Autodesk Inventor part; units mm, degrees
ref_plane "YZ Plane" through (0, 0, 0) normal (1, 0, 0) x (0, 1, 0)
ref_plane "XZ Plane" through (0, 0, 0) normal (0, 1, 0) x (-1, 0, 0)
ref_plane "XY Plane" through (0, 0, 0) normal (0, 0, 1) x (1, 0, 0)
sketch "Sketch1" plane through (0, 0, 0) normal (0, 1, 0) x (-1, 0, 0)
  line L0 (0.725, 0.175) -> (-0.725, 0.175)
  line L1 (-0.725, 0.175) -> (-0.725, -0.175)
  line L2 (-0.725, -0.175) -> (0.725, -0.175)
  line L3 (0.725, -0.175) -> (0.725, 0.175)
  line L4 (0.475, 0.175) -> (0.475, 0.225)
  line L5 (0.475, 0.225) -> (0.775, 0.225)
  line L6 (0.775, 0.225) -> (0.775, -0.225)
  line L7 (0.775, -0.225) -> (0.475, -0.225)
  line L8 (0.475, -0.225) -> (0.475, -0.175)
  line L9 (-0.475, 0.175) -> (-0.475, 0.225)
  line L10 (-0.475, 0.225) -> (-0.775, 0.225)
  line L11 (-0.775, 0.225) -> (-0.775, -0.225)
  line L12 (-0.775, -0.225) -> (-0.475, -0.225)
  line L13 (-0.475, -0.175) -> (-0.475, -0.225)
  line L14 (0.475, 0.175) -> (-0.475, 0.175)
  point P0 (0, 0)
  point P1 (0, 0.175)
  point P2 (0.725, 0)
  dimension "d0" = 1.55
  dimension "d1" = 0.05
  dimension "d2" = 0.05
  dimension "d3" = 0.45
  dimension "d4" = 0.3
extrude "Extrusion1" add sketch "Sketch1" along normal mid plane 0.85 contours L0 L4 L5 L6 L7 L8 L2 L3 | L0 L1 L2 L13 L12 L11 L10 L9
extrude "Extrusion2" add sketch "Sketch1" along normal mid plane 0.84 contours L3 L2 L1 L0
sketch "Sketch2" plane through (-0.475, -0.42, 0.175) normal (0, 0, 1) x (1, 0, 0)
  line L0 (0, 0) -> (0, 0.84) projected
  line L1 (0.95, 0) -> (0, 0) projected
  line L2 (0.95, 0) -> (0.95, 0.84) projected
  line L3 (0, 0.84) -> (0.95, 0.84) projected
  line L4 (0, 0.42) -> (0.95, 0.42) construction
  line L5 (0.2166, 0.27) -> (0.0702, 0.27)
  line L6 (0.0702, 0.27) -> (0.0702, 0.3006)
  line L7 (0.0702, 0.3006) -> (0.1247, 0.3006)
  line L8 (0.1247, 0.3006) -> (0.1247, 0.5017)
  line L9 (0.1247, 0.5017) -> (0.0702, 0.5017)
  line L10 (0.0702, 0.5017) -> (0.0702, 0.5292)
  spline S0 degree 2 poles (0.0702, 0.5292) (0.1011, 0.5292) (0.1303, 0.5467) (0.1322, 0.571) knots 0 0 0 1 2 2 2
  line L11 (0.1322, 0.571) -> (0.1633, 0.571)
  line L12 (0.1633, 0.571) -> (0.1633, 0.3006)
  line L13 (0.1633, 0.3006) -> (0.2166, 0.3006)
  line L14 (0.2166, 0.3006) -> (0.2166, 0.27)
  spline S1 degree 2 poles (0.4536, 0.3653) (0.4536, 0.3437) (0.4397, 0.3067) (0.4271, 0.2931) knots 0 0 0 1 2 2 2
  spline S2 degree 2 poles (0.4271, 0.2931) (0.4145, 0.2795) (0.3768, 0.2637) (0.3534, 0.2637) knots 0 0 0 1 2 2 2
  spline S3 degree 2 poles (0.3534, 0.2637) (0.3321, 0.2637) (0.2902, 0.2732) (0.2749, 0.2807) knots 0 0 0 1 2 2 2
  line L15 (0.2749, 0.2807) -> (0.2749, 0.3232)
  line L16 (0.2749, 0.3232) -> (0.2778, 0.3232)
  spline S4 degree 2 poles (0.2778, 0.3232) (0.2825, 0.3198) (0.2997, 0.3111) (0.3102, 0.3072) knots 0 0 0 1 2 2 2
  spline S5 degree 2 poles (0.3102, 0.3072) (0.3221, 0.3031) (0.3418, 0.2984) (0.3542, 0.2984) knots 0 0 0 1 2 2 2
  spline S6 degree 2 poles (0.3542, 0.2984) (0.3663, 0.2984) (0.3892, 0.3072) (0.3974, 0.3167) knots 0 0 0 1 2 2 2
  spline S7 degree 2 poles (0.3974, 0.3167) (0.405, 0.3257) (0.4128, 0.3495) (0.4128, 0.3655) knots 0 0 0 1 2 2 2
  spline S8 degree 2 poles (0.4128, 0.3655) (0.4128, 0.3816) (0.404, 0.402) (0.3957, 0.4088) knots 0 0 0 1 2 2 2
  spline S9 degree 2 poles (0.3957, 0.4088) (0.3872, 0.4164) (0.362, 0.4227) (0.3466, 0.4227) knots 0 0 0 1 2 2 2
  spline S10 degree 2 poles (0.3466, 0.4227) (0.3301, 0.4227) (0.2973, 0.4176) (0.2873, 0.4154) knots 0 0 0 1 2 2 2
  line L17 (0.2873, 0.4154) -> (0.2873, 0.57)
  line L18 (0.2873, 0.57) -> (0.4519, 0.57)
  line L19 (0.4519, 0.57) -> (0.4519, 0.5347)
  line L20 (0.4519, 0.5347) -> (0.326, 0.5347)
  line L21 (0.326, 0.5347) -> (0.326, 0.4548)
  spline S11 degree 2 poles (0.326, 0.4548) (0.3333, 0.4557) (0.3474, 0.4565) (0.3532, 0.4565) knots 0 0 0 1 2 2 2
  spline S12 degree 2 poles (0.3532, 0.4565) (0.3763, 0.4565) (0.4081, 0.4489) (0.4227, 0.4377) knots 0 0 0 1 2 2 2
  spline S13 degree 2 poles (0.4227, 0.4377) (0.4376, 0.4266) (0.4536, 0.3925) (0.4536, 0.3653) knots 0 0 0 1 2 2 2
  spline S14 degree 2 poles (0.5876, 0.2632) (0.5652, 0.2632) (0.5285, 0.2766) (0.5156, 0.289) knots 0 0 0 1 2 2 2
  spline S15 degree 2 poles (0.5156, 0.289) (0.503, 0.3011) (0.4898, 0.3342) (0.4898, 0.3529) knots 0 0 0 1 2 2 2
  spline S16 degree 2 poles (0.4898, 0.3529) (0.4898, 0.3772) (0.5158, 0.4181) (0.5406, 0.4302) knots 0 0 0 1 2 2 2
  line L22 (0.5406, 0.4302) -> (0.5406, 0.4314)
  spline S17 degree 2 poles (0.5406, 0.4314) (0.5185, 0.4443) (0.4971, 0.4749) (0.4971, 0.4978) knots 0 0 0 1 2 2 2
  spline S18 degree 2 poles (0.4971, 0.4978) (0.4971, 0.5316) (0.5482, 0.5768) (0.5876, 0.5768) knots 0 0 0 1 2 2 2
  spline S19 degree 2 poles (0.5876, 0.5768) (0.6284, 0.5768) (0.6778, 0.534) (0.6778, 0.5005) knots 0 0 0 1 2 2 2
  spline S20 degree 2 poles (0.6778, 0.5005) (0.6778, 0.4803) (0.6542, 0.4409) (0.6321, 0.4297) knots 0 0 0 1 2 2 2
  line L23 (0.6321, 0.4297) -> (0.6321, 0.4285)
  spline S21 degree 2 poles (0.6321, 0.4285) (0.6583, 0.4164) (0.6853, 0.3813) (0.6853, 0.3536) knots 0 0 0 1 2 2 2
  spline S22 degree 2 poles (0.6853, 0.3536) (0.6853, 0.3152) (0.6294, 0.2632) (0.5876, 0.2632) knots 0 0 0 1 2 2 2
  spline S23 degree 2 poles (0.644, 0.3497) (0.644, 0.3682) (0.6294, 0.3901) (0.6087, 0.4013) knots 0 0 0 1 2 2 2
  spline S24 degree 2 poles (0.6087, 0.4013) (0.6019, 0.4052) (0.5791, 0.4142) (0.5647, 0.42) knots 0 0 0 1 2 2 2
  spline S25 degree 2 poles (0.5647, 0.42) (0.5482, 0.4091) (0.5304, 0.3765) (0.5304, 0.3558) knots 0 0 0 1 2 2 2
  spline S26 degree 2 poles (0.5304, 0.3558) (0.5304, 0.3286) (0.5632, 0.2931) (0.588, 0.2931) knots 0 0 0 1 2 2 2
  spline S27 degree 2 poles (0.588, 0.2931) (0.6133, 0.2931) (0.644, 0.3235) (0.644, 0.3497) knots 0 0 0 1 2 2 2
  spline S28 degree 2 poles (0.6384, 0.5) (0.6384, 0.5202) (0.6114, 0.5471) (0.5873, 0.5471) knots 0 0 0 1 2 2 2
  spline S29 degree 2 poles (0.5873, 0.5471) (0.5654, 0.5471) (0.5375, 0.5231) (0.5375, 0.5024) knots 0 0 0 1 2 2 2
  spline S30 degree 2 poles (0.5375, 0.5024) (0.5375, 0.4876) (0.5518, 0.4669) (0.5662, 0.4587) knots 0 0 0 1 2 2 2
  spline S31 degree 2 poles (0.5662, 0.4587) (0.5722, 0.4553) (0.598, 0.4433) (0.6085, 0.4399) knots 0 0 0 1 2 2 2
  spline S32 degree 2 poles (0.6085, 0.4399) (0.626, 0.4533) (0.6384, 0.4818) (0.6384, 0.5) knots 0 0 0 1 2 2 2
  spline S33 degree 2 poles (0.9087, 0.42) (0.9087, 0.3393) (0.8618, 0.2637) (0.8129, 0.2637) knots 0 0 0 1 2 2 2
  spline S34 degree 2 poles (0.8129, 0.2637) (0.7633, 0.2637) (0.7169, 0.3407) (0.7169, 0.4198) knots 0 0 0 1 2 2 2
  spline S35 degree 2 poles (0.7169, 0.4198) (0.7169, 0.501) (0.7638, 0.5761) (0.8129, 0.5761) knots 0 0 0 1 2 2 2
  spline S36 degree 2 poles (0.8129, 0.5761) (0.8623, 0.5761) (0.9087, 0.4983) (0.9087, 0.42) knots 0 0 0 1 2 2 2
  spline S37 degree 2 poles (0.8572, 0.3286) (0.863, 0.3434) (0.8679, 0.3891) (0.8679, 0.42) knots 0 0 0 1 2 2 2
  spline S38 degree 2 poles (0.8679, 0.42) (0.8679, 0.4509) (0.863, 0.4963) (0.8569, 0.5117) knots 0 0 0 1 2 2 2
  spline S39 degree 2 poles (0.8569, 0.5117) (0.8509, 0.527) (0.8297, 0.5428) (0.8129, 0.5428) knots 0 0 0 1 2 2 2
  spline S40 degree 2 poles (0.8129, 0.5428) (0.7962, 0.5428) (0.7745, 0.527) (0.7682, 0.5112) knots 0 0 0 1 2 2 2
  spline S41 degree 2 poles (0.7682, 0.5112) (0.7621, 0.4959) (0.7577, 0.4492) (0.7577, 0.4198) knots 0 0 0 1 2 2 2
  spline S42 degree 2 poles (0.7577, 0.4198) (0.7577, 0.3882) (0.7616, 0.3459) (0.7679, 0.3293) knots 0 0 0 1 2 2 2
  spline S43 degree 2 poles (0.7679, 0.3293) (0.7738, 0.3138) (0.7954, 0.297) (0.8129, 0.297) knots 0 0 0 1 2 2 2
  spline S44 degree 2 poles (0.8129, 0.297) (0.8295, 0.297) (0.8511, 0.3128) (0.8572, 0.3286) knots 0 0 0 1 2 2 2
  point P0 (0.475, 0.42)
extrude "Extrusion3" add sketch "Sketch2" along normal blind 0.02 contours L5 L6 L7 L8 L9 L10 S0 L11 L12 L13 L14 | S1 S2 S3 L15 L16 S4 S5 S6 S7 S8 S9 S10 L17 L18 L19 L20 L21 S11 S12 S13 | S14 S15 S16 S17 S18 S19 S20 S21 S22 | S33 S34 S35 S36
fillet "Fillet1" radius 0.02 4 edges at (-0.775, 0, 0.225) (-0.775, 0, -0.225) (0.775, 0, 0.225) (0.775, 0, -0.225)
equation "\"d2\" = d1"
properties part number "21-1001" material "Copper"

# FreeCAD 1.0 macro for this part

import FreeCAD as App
import Part
import Sketcher
Q = App.Units.Quantity


def edges_at(feature, points):
    """Names of the edges that pass closest to the given points."""
    edges = feature.Shape.Edges
    near = lambda p: min(range(len(edges)), key=lambda i: edges[i].distToShape(Part.Vertex(*p))[0])
    return sorted({f"Edge{near(p) + 1}" for p in points})


def add_polygon(sketch, points):
    """Adds a closed chain of lines whose ends are joined by coincident constraints."""
    first, n = sketch.GeometryCount, len(points)
    for a, b in zip(points, points[1:] + points[:1]):
        sketch.addGeometry(Part.LineSegment(App.Vector(*a, 0), App.Vector(*b, 0)), False)
    for i in range(n):
        sketch.addConstraint(Sketcher.Constraint("Coincident", first + i, 2, first + (i + 1) % n, 1))

doc = App.newDocument("Part")
body = doc.addObject("PartDesign::Body", "Body")
body.AllowCompound = True

# Sketch on XZ plane
sketch1 = doc.addObject("Sketcher::SketchObject", "Sketch")
body.addObject(sketch1)
sketch1.AttachmentSupport = (doc.XZ_Plane, [""])
sketch1.MapMode = "FlatFace"
add_polygon(sketch1, [(-0.475, 0.175), (-0.725, 0.175), (-0.725, -0.175), (-0.475, -0.175), (-0.475, -0.225), (-0.775, -0.225), (-0.775, 0.225), (-0.475, 0.225)])  # lines 0-7
add_polygon(sketch1, [(0.725, 0.175), (0.475, 0.175), (0.475, 0.225), (0.775, 0.225), (0.775, -0.225), (0.475, -0.225), (0.475, -0.175), (0.725, -0.175)])  # lines 8-15
sketch1.addConstraint(Sketcher.Constraint("Horizontal", 0))
sketch1.addConstraint(Sketcher.Constraint("Vertical", 1))
sketch1.addConstraint(Sketcher.Constraint("Horizontal", 2))
sketch1.addConstraint(Sketcher.Constraint("Vertical", 3))
sketch1.addConstraint(Sketcher.Constraint("Horizontal", 4))
sketch1.addConstraint(Sketcher.Constraint("Vertical", 5))
sketch1.addConstraint(Sketcher.Constraint("Horizontal", 6))
sketch1.addConstraint(Sketcher.Constraint("Vertical", 7))
sketch1.addConstraint(Sketcher.Constraint("Horizontal", 8))
sketch1.addConstraint(Sketcher.Constraint("Vertical", 9))
sketch1.addConstraint(Sketcher.Constraint("Horizontal", 10))
sketch1.addConstraint(Sketcher.Constraint("Vertical", 11))
sketch1.addConstraint(Sketcher.Constraint("Horizontal", 12))
sketch1.addConstraint(Sketcher.Constraint("Vertical", 13))
sketch1.addConstraint(Sketcher.Constraint("Horizontal", 14))
sketch1.addConstraint(Sketcher.Constraint("Vertical", 15))
sketch1.addConstraint(Sketcher.Constraint("Symmetric", 2, 2, 8, 2, -1, 1))
sketch1.addConstraint(Sketcher.Constraint("Symmetric", 4, 2, 10, 2, -1, 1))
sketch1.addConstraint(Sketcher.Constraint("Symmetric", 6, 2, 12, 2, -1, 1))
sketch1.addConstraint(Sketcher.Constraint("Symmetric", 0, 2, 14, 2, -1, 1))
sketch1.addConstraint(Sketcher.Constraint("Symmetric", 7, 2, 8, 2, -2))
sketch1.addConstraint(Sketcher.Constraint("Horizontal", 6, 2, 9, 2))
sketch1.addConstraint(Sketcher.Constraint("DistanceX", 4, 2, 4, 1, Q("0.3 mm")))
sketch1.addConstraint(Sketcher.Constraint("DistanceY", 3, 2, 3, 1, Q("0.05 mm")))
sketch1.addConstraint(Sketcher.Constraint("DistanceY", 5, 1, 5, 2, Q("0.45 mm")))
sketch1.addConstraint(Sketcher.Constraint("DistanceX", 4, 2, 1, 2, Q("0.05 mm")))
sketch1.addConstraint(Sketcher.Constraint("DistanceX", 0, 2, 8, 2, Q("1.2 mm")))
pad1 = doc.addObject("PartDesign::Pad", "Pad")
body.addObject(pad1)
pad1.Profile = sketch1
pad1.Length = 0.85
pad1.Midplane = True

# Sketch on XZ plane
sketch2 = doc.addObject("Sketcher::SketchObject", "Sketch001")
body.addObject(sketch2)
sketch2.AttachmentSupport = (doc.XZ_Plane, [""])
sketch2.MapMode = "FlatFace"
add_polygon(sketch2, [(-0.725, -0.175), (-0.725, 0.175), (0.725, 0.175), (0.725, -0.175)])  # lines 0-3
sketch2.addConstraint(Sketcher.Constraint("Vertical", 0))
sketch2.addConstraint(Sketcher.Constraint("Horizontal", 1))
sketch2.addConstraint(Sketcher.Constraint("Vertical", 2))
sketch2.addConstraint(Sketcher.Constraint("Horizontal", 3))
sketch2.addConstraint(Sketcher.Constraint("Symmetric", 0, 2, 2, 2, -1, 1))
sketch2.addConstraint(Sketcher.Constraint("DistanceX", 1, 1, 1, 2, Q("1.45 mm")))
sketch2.addConstraint(Sketcher.Constraint("DistanceY", 0, 1, 0, 2, Q("0.35 mm")))
pad2 = doc.addObject("PartDesign::Pad", "Pad001")
body.addObject(pad2)
pad2.Profile = sketch2
pad2.Length = 0.84
pad2.Midplane = True

# Sketch on XY plane
sketch3 = doc.addObject("Sketcher::SketchObject", "Sketch002")
body.addObject(sketch3)
sketch3.AttachmentSupport = (doc.XY_Plane, [""])
sketch3.MapMode = "FlatFace"
sketch3.AttachmentOffset = App.Placement(App.Vector(0, 0, 0.175), App.Rotation())
sketch3.addGeometry(Part.LineSegment(App.Vector(-0.4048, -0.15, 0), App.Vector(-0.2584, -0.15, 0)), False)
sketch3.addGeometry(Part.LineSegment(App.Vector(-0.2584, -0.15, 0), App.Vector(-0.2584, -0.1194, 0)), False)
sketch3.addGeometry(Part.LineSegment(App.Vector(-0.2584, -0.1194, 0), App.Vector(-0.3117, -0.1194, 0)), False)
sketch3.addGeometry(Part.LineSegment(App.Vector(-0.3117, -0.1194, 0), App.Vector(-0.3117, 0.151, 0)), False)
sketch3.addGeometry(Part.LineSegment(App.Vector(-0.3117, 0.151, 0), App.Vector(-0.3428, 0.151, 0)), False)
sketch3.addGeometry(Part.BSplineCurve([App.Vector(-0.4048, 0.1092, 0), App.Vector(-0.3739, 0.1092, 0), App.Vector(-0.3447, 0.1267, 0), App.Vector(-0.3428, 0.151, 0)], [3, 1, 3], [0, 1, 2], False, 2, [1, 1, 1, 1], False), False)
sketch3.addGeometry(Part.LineSegment(App.Vector(-0.4048, 0.1092, 0), App.Vector(-0.4048, 0.0817, 0)), False)
sketch3.addGeometry(Part.LineSegment(App.Vector(-0.4048, 0.0817, 0), App.Vector(-0.3503, 0.0817, 0)), False)
sketch3.addGeometry(Part.LineSegment(App.Vector(-0.3503, 0.0817, 0), App.Vector(-0.3503, -0.1194, 0)), False)
sketch3.addGeometry(Part.LineSegment(App.Vector(-0.3503, -0.1194, 0), App.Vector(-0.4048, -0.1194, 0)), False)
sketch3.addGeometry(Part.LineSegment(App.Vector(-0.4048, -0.1194, 0), App.Vector(-0.4048, -0.15, 0)), False)
sketch3.addGeometry(Part.BSplineCurve([App.Vector(-0.0214, -0.0547, 0), App.Vector(-0.0214, -0.0763, 0), App.Vector(-0.0353, -0.1133, 0), App.Vector(-0.0479, -0.1269, 0)], [3, 1, 3], [0, 1, 2], False, 2, [1, 1, 1, 1], False), False)
sketch3.addGeometry(Part.BSplineCurve([App.Vector(-0.0523, 0.0177, 0), App.Vector(-0.0374, 0.0066, 0), App.Vector(-0.0214, -0.0275, 0), App.Vector(-0.0214, -0.0547, 0)], [3, 1, 3], [0, 1, 2], False, 2, [1, 1, 1, 1], False), False)
sketch3.addGeometry(Part.BSplineCurve([App.Vector(-0.1218, 0.0365, 0), App.Vector(-0.0987, 0.0365, 0), App.Vector(-0.0669, 0.0289, 0), App.Vector(-0.0523, 0.0177, 0)], [3, 1, 3], [0, 1, 2], False, 2, [1, 1, 1, 1], False), False)
sketch3.addGeometry(Part.BSplineCurve([App.Vector(-0.149, 0.0348, 0), App.Vector(-0.1417, 0.0357, 0), App.Vector(-0.1276, 0.0365, 0), App.Vector(-0.1218, 0.0365, 0)], [3, 1, 3], [0, 1, 2], False, 2, [1, 1, 1, 1], False), False)
sketch3.addGeometry(Part.LineSegment(App.Vector(-0.149, 0.0348, 0), App.Vector(-0.149, 0.1147, 0)), False)
sketch3.addGeometry(Part.LineSegment(App.Vector(-0.149, 0.1147, 0), App.Vector(-0.0231, 0.1147, 0)), False)
sketch3.addGeometry(Part.LineSegment(App.Vector(-0.0231, 0.1147, 0), App.Vector(-0.0231, 0.15, 0)), False)
sketch3.addGeometry(Part.LineSegment(App.Vector(-0.0231, 0.15, 0), App.Vector(-0.1877, 0.15, 0)), False)
sketch3.addGeometry(Part.LineSegment(App.Vector(-0.1877, 0.15, 0), App.Vector(-0.1877, -0.0046, 0)), False)
sketch3.addGeometry(Part.BSplineCurve([App.Vector(-0.1284, 0.0027, 0), App.Vector(-0.1449, 0.0027, 0), App.Vector(-0.1777, -0.0024, 0), App.Vector(-0.1877, -0.0046, 0)], [3, 1, 3], [0, 1, 2], False, 2, [1, 1, 1, 1], False), False)
sketch3.addGeometry(Part.BSplineCurve([App.Vector(-0.0793, -0.0112, 0), App.Vector(-0.0878, -0.0036, 0), App.Vector(-0.113, 0.0027, 0), App.Vector(-0.1284, 0.0027, 0)], [3, 1, 3], [0, 1, 2], False, 2, [1, 1, 1, 1], False), False)
sketch3.addGeometry(Part.BSplineCurve([App.Vector(-0.0622, -0.0545, 0), App.Vector(-0.0622, -0.0384, 0), App.Vector(-0.071, -0.018, 0), App.Vector(-0.0793, -0.0112, 0)], [3, 1, 3], [0, 1, 2], False, 2, [1, 1, 1, 1], False), False)
sketch3.addGeometry(Part.BSplineCurve([App.Vector(-0.0776, -0.1033, 0), App.Vector(-0.07, -0.0943, 0), App.Vector(-0.0622, -0.0705, 0), App.Vector(-0.0622, -0.0545, 0)], [3, 1, 3], [0, 1, 2], False, 2, [1, 1, 1, 1], False), False)
sketch3.addGeometry(Part.BSplineCurve([App.Vector(-0.1208, -0.1216, 0), App.Vector(-0.1087, -0.1216, 0), App.Vector(-0.0858, -0.1128, 0), App.Vector(-0.0776, -0.1033, 0)], [3, 1, 3], [0, 1, 2], False, 2, [1, 1, 1, 1], False), False)
sketch3.addGeometry(Part.BSplineCurve([App.Vector(-0.1648, -0.1128, 0), App.Vector(-0.1529, -0.1169, 0), App.Vector(-0.1332, -0.1216, 0), App.Vector(-0.1208, -0.1216, 0)], [3, 1, 3], [0, 1, 2], False, 2, [1, 1, 1, 1], False), False)
sketch3.addGeometry(Part.BSplineCurve([App.Vector(-0.1972, -0.0968, 0), App.Vector(-0.1925, -0.1002, 0), App.Vector(-0.1753, -0.1089, 0), App.Vector(-0.1648, -0.1128, 0)], [3, 1, 3], [0, 1, 2], False, 2, [1, 1, 1, 1], False), False)
sketch3.addGeometry(Part.LineSegment(App.Vector(-0.1972, -0.0968, 0), App.Vector(-0.2001, -0.0968, 0)), False)
sketch3.addGeometry(Part.LineSegment(App.Vector(-0.2001, -0.0968, 0), App.Vector(-0.2001, -0.1393, 0)), False)
sketch3.addGeometry(Part.BSplineCurve([App.Vector(-0.1216, -0.1563, 0), App.Vector(-0.1429, -0.1563, 0), App.Vector(-0.1848, -0.1468, 0), App.Vector(-0.2001, -0.1393, 0)], [3, 1, 3], [0, 1, 2], False, 2, [1, 1, 1, 1], False), False)
sketch3.addGeometry(Part.BSplineCurve([App.Vector(-0.0479, -0.1269, 0), App.Vector(-0.0605, -0.1405, 0), App.Vector(-0.0982, -0.1563, 0), App.Vector(-0.1216, -0.1563, 0)], [3, 1, 3], [0, 1, 2], False, 2, [1, 1, 1, 1], False), False)
sketch3.addGeometry(Part.BSplineCurve([App.Vector(0.1126, -0.1568, 0), App.Vector(0.0902, -0.1568, 0), App.Vector(0.0535, -0.1434, 0), App.Vector(0.0406, -0.131, 0)], [3, 1, 3], [0, 1, 2], False, 2, [1, 1, 1, 1], False), False)
sketch3.addGeometry(Part.BSplineCurve([App.Vector(0.2103, -0.0664, 0), App.Vector(0.2103, -0.1048, 0), App.Vector(0.1544, -0.1568, 0), App.Vector(0.1126, -0.1568, 0)], [3, 1, 3], [0, 1, 2], False, 2, [1, 1, 1, 1], False), False)
sketch3.addGeometry(Part.BSplineCurve([App.Vector(0.1571, 0.0097, 0), App.Vector(0.1833, -0.0036, 0), App.Vector(0.2103, -0.0387, 0), App.Vector(0.2103, -0.0664, 0)], [3, 1, 3], [0, 1, 2], False, 2, [1, 1, 1, 1], False), False)
sketch3.addGeometry(Part.BSplineCurve([App.Vector(0.2028, 0.0805, 0), App.Vector(0.2028, 0.0603, 0), App.Vector(0.1792, 0.0209, 0), App.Vector(0.1571, 0.0097, 0)], [3, 1, 3], [0, 1, 2], False, 2, [1, 1, 1, 1], False), False)
sketch3.addGeometry(Part.BSplineCurve([App.Vector(0.1126, 0.1568, 0), App.Vector(0.1534, 0.1568, 0), App.Vector(0.2028, 0.114, 0), App.Vector(0.2028, 0.0805, 0)], [3, 1, 3], [0, 1, 2], False, 2, [1, 1, 1, 1], False), False)
sketch3.addGeometry(Part.BSplineCurve([App.Vector(0.0221, 0.0778, 0), App.Vector(0.0221, 0.1116, 0), App.Vector(0.0732, 0.1568, 0), App.Vector(0.1126, 0.1568, 0)], [3, 1, 3], [0, 1, 2], False, 2, [1, 1, 1, 1], False), False)
sketch3.addGeometry(Part.BSplineCurve([App.Vector(0.0656, 0.0102, 0), App.Vector(0.0435, 0.0243, 0), App.Vector(0.0221, 0.0549, 0), App.Vector(0.0221, 0.0778, 0)], [3, 1, 3], [0, 1, 2], False, 2, [1, 1, 1, 1], False), False)
sketch3.addGeometry(Part.BSplineCurve([App.Vector(0.0148, -0.0671, 0), App.Vector(0.0148, -0.0428, 0), App.Vector(0.0408, -0.0019, 0), App.Vector(0.0656, 0.0102, 0)], [3, 1, 3], [0, 1, 2], False, 2, [1, 1, 1, 1], False), False)
sketch3.addGeometry(Part.BSplineCurve([App.Vector(0.0406, -0.131, 0), App.Vector(0.028, -0.1189, 0), App.Vector(0.0148, -0.0858, 0), App.Vector(0.0148, -0.0671, 0)], [3, 1, 3], [0, 1, 2], False, 2, [1, 1, 1, 1], False), False)
sketch3.addGeometry(Part.BSplineCurve([App.Vector(0.169, -0.0703, 0), App.Vector(0.169, -0.0518, 0), App.Vector(0.1544, -0.0299, 0), App.Vector(0.1337, -0.0187, 0)], [3, 1, 3], [0, 1, 2], False, 2, [1, 1, 1, 1], False), False)
sketch3.addGeometry(Part.BSplineCurve([App.Vector(0.113, -0.1269, 0), App.Vector(0.1383, -0.1269, 0), App.Vector(0.169, -0.0965, 0), App.Vector(0.169, -0.0703, 0)], [3, 1, 3], [0, 1, 2], False, 2, [1, 1, 1, 1], False), False)
sketch3.addGeometry(Part.BSplineCurve([App.Vector(0.0554, -0.0642, 0), App.Vector(0.0554, -0.0914, 0), App.Vector(0.0882, -0.1269, 0), App.Vector(0.113, -0.1269, 0)], [3, 1, 3], [0, 1, 2], False, 2, [1, 1, 1, 1], False), False)
sketch3.addGeometry(Part.BSplineCurve([App.Vector(0.0897, 0, 0), App.Vector(0.0732, -0.0109, 0), App.Vector(0.0554, -0.0435, 0), App.Vector(0.0554, -0.0642, 0)], [3, 1, 3], [0, 1, 2], False, 2, [1, 1, 1, 1], False), False)
sketch3.addGeometry(Part.BSplineCurve([App.Vector(0.1337, -0.0187, 0), App.Vector(0.1269, -0.0148, 0), App.Vector(0.1041, -0.0058, 0), App.Vector(0.0897, 0, 0)], [3, 1, 3], [0, 1, 2], False, 2, [1, 1, 1, 1], False), False)
sketch3.addGeometry(Part.BSplineCurve([App.Vector(0.1634, 0.08, 0), App.Vector(0.1634, 0.1002, 0), App.Vector(0.1364, 0.1271, 0), App.Vector(0.1123, 0.1271, 0)], [3, 1, 3], [0, 1, 2], False, 2, [1, 1, 1, 1], False), False)
sketch3.addGeometry(Part.BSplineCurve([App.Vector(0.1335, 0.0199, 0), App.Vector(0.151, 0.0333, 0), App.Vector(0.1634, 0.0618, 0), App.Vector(0.1634, 0.08, 0)], [3, 1, 3], [0, 1, 2], False, 2, [1, 1, 1, 1], False), False)
sketch3.addGeometry(Part.BSplineCurve([App.Vector(0.0912, 0.0387, 0), App.Vector(0.0972, 0.0353, 0), App.Vector(0.123, 0.0233, 0), App.Vector(0.1335, 0.0199, 0)], [3, 1, 3], [0, 1, 2], False, 2, [1, 1, 1, 1], False), False)
sketch3.addGeometry(Part.BSplineCurve([App.Vector(0.0625, 0.0824, 0), App.Vector(0.0625, 0.0676, 0), App.Vector(0.0768, 0.0469, 0), App.Vector(0.0912, 0.0387, 0)], [3, 1, 3], [0, 1, 2], False, 2, [1, 1, 1, 1], False), False)
sketch3.addGeometry(Part.BSplineCurve([App.Vector(0.1123, 0.1271, 0), App.Vector(0.0904, 0.1271, 0), App.Vector(0.0625, 0.1031, 0), App.Vector(0.0625, 0.0824, 0)], [3, 1, 3], [0, 1, 2], False, 2, [1, 1, 1, 1], False), False)
sketch3.addGeometry(Part.BSplineCurve([App.Vector(0.4337, 0, 0), App.Vector(0.4337, -0.0807, 0), App.Vector(0.3868, -0.1563, 0), App.Vector(0.3379, -0.1563, 0)], [3, 1, 3], [0, 1, 2], False, 2, [1, 1, 1, 1], False), False)
sketch3.addGeometry(Part.BSplineCurve([App.Vector(0.3379, 0.1561, 0), App.Vector(0.3873, 0.1561, 0), App.Vector(0.4337, 0.0783, 0), App.Vector(0.4337, 0, 0)], [3, 1, 3], [0, 1, 2], False, 2, [1, 1, 1, 1], False), False)
sketch3.addGeometry(Part.BSplineCurve([App.Vector(0.2419, -0.0002, 0), App.Vector(0.2419, 0.081, 0), App.Vector(0.2888, 0.1561, 0), App.Vector(0.3379, 0.1561, 0)], [3, 1, 3], [0, 1, 2], False, 2, [1, 1, 1, 1], False), False)
sketch3.addGeometry(Part.BSplineCurve([App.Vector(0.3379, -0.1563, 0), App.Vector(0.2883, -0.1563, 0), App.Vector(0.2419, -0.0793, 0), App.Vector(0.2419, -0.0002, 0)], [3, 1, 3], [0, 1, 2], False, 2, [1, 1, 1, 1], False), False)
sketch3.addGeometry(Part.BSplineCurve([App.Vector(0.3822, -0.0914, 0), App.Vector(0.388, -0.0766, 0), App.Vector(0.3929, -0.0309, 0), App.Vector(0.3929, 0, 0)], [3, 1, 3], [0, 1, 2], False, 2, [1, 1, 1, 1], False), False)
sketch3.addGeometry(Part.BSplineCurve([App.Vector(0.3379, -0.123, 0), App.Vector(0.3545, -0.123, 0), App.Vector(0.3761, -0.1072, 0), App.Vector(0.3822, -0.0914, 0)], [3, 1, 3], [0, 1, 2], False, 2, [1, 1, 1, 1], False), False)
sketch3.addGeometry(Part.BSplineCurve([App.Vector(0.2929, -0.0907, 0), App.Vector(0.2988, -0.1062, 0), App.Vector(0.3204, -0.123, 0), App.Vector(0.3379, -0.123, 0)], [3, 1, 3], [0, 1, 2], False, 2, [1, 1, 1, 1], False), False)
sketch3.addGeometry(Part.BSplineCurve([App.Vector(0.2827, -0.0002, 0), App.Vector(0.2827, -0.0318, 0), App.Vector(0.2866, -0.0741, 0), App.Vector(0.2929, -0.0907, 0)], [3, 1, 3], [0, 1, 2], False, 2, [1, 1, 1, 1], False), False)
sketch3.addGeometry(Part.BSplineCurve([App.Vector(0.2932, 0.0912, 0), App.Vector(0.2871, 0.0759, 0), App.Vector(0.2827, 0.0292, 0), App.Vector(0.2827, -0.0002, 0)], [3, 1, 3], [0, 1, 2], False, 2, [1, 1, 1, 1], False), False)
sketch3.addGeometry(Part.BSplineCurve([App.Vector(0.3379, 0.1228, 0), App.Vector(0.3212, 0.1228, 0), App.Vector(0.2995, 0.107, 0), App.Vector(0.2932, 0.0912, 0)], [3, 1, 3], [0, 1, 2], False, 2, [1, 1, 1, 1], False), False)
sketch3.addGeometry(Part.BSplineCurve([App.Vector(0.3819, 0.0917, 0), App.Vector(0.3759, 0.107, 0), App.Vector(0.3547, 0.1228, 0), App.Vector(0.3379, 0.1228, 0)], [3, 1, 3], [0, 1, 2], False, 2, [1, 1, 1, 1], False), False)
sketch3.addGeometry(Part.BSplineCurve([App.Vector(0.3929, 0, 0), App.Vector(0.3929, 0.0309, 0), App.Vector(0.388, 0.0763, 0), App.Vector(0.3819, 0.0917, 0)], [3, 1, 3], [0, 1, 2], False, 2, [1, 1, 1, 1], False), False)
sketch3.addConstraint(Sketcher.Constraint("Block", 5))
sketch3.addConstraint(Sketcher.Constraint("Block", 11))
sketch3.addConstraint(Sketcher.Constraint("Block", 12))
sketch3.addConstraint(Sketcher.Constraint("Block", 13))
sketch3.addConstraint(Sketcher.Constraint("Block", 14))
sketch3.addConstraint(Sketcher.Constraint("Block", 20))
sketch3.addConstraint(Sketcher.Constraint("Block", 21))
sketch3.addConstraint(Sketcher.Constraint("Block", 22))
sketch3.addConstraint(Sketcher.Constraint("Block", 23))
sketch3.addConstraint(Sketcher.Constraint("Block", 24))
sketch3.addConstraint(Sketcher.Constraint("Block", 25))
sketch3.addConstraint(Sketcher.Constraint("Block", 26))
sketch3.addConstraint(Sketcher.Constraint("Block", 29))
sketch3.addConstraint(Sketcher.Constraint("Block", 30))
sketch3.addConstraint(Sketcher.Constraint("Block", 31))
sketch3.addConstraint(Sketcher.Constraint("Block", 32))
sketch3.addConstraint(Sketcher.Constraint("Block", 33))
sketch3.addConstraint(Sketcher.Constraint("Block", 34))
sketch3.addConstraint(Sketcher.Constraint("Block", 35))
sketch3.addConstraint(Sketcher.Constraint("Block", 36))
sketch3.addConstraint(Sketcher.Constraint("Block", 37))
sketch3.addConstraint(Sketcher.Constraint("Block", 38))
sketch3.addConstraint(Sketcher.Constraint("Block", 39))
sketch3.addConstraint(Sketcher.Constraint("Block", 40))
sketch3.addConstraint(Sketcher.Constraint("Block", 41))
sketch3.addConstraint(Sketcher.Constraint("Block", 42))
sketch3.addConstraint(Sketcher.Constraint("Block", 43))
sketch3.addConstraint(Sketcher.Constraint("Block", 44))
sketch3.addConstraint(Sketcher.Constraint("Block", 45))
sketch3.addConstraint(Sketcher.Constraint("Block", 46))
sketch3.addConstraint(Sketcher.Constraint("Block", 47))
sketch3.addConstraint(Sketcher.Constraint("Block", 48))
sketch3.addConstraint(Sketcher.Constraint("Block", 49))
sketch3.addConstraint(Sketcher.Constraint("Block", 50))
sketch3.addConstraint(Sketcher.Constraint("Block", 51))
sketch3.addConstraint(Sketcher.Constraint("Block", 52))
sketch3.addConstraint(Sketcher.Constraint("Block", 53))
sketch3.addConstraint(Sketcher.Constraint("Block", 54))
sketch3.addConstraint(Sketcher.Constraint("Block", 55))
sketch3.addConstraint(Sketcher.Constraint("Block", 56))
sketch3.addConstraint(Sketcher.Constraint("Block", 57))
sketch3.addConstraint(Sketcher.Constraint("Block", 58))
sketch3.addConstraint(Sketcher.Constraint("Block", 59))
sketch3.addConstraint(Sketcher.Constraint("Block", 60))
sketch3.addConstraint(Sketcher.Constraint("Block", 61))
sketch3.addConstraint(Sketcher.Constraint("Coincident", 0, 2, 1, 1))
sketch3.addConstraint(Sketcher.Constraint("Coincident", 1, 2, 2, 1))
sketch3.addConstraint(Sketcher.Constraint("Coincident", 2, 2, 3, 1))
sketch3.addConstraint(Sketcher.Constraint("Coincident", 3, 2, 4, 1))
sketch3.addConstraint(Sketcher.Constraint("Coincident", 4, 2, 5, 2))
sketch3.addConstraint(Sketcher.Constraint("Coincident", 5, 1, 6, 1))
sketch3.addConstraint(Sketcher.Constraint("Coincident", 6, 2, 7, 1))
sketch3.addConstraint(Sketcher.Constraint("Coincident", 7, 2, 8, 1))
sketch3.addConstraint(Sketcher.Constraint("Coincident", 8, 2, 9, 1))
sketch3.addConstraint(Sketcher.Constraint("Coincident", 9, 2, 10, 1))
sketch3.addConstraint(Sketcher.Constraint("Coincident", 10, 2, 0, 1))
sketch3.addConstraint(Sketcher.Constraint("Coincident", 14, 1, 15, 1))
sketch3.addConstraint(Sketcher.Constraint("Coincident", 15, 2, 16, 1))
sketch3.addConstraint(Sketcher.Constraint("Coincident", 16, 2, 17, 1))
sketch3.addConstraint(Sketcher.Constraint("Coincident", 17, 2, 18, 1))
sketch3.addConstraint(Sketcher.Constraint("Coincident", 18, 2, 19, 1))
sketch3.addConstraint(Sketcher.Constraint("Coincident", 19, 2, 20, 2))
sketch3.addConstraint(Sketcher.Constraint("Coincident", 26, 1, 27, 1))
sketch3.addConstraint(Sketcher.Constraint("Coincident", 27, 2, 28, 1))
sketch3.addConstraint(Sketcher.Constraint("Coincident", 28, 2, 29, 2))
sketch3.addConstraint(Sketcher.Constraint("Horizontal", 0))
sketch3.addConstraint(Sketcher.Constraint("Vertical", 1))
sketch3.addConstraint(Sketcher.Constraint("Horizontal", 2))
sketch3.addConstraint(Sketcher.Constraint("Vertical", 3))
sketch3.addConstraint(Sketcher.Constraint("Horizontal", 4))
sketch3.addConstraint(Sketcher.Constraint("Vertical", 6))
sketch3.addConstraint(Sketcher.Constraint("Horizontal", 7))
sketch3.addConstraint(Sketcher.Constraint("Vertical", 8))
sketch3.addConstraint(Sketcher.Constraint("Horizontal", 9))
sketch3.addConstraint(Sketcher.Constraint("Vertical", 10))
sketch3.addConstraint(Sketcher.Constraint("Vertical", 15))
sketch3.addConstraint(Sketcher.Constraint("Horizontal", 16))
sketch3.addConstraint(Sketcher.Constraint("Vertical", 17))
sketch3.addConstraint(Sketcher.Constraint("Horizontal", 18))
sketch3.addConstraint(Sketcher.Constraint("Vertical", 19))
sketch3.addConstraint(Sketcher.Constraint("Horizontal", 27))
sketch3.addConstraint(Sketcher.Constraint("Vertical", 28))
sketch3.addConstraint(Sketcher.Constraint("Horizontal", 2, 2, 8, 2))
sketch3.addConstraint(Sketcher.Constraint("Vertical", 6, 2, 9, 2))
sketch3.addConstraint(Sketcher.Constraint("DistanceY", 15, 1, 15, 2, Q("0.08 mm")))
sketch3.addConstraint(Sketcher.Constraint("DistanceX", 4, 2, 4, 1, Q("0.031 mm")))
sketch3.addConstraint(Sketcher.Constraint("DistanceX", 16, 1, 16, 2, Q("0.126 mm")))
sketch3.addConstraint(Sketcher.Constraint("DistanceY", 8, 2, 8, 1, Q("0.201 mm")))
sketch3.addConstraint(Sketcher.Constraint("DistanceY", 0, 2, -1, 1, Q("0.15 mm")))
sketch3.addConstraint(Sketcher.Constraint("DistanceY", -1, 1, 17, 2, Q("0.15 mm")))
sketch3.addConstraint(Sketcher.Constraint("DistanceY", 28, 2, 1, 2, Q("0.02 mm")))
sketch3.addConstraint(Sketcher.Constraint("DistanceX", 0, 1, 0, 2, Q("0.1464 mm")))
sketch3.addConstraint(Sketcher.Constraint("DistanceX", 7, 1, 7, 2, Q("0.0545 mm")))
pad3 = doc.addObject("PartDesign::Pad", "Pad002")
body.addObject(pad3)
pad3.Profile = sketch3
pad3.Length = 0.02
doc.recompute()

fillet = doc.addObject("PartDesign::Fillet", "Fillet")
body.addObject(fillet)
fillet.Base = (pad3, edges_at(pad3, [
    (-0.775, 0, 0.225),
    (-0.775, 0, -0.225),
    (0.775, 0, 0.225),
    (0.775, 0, -0.225),
]))
fillet.Radius = 0.02

doc.recompute()
